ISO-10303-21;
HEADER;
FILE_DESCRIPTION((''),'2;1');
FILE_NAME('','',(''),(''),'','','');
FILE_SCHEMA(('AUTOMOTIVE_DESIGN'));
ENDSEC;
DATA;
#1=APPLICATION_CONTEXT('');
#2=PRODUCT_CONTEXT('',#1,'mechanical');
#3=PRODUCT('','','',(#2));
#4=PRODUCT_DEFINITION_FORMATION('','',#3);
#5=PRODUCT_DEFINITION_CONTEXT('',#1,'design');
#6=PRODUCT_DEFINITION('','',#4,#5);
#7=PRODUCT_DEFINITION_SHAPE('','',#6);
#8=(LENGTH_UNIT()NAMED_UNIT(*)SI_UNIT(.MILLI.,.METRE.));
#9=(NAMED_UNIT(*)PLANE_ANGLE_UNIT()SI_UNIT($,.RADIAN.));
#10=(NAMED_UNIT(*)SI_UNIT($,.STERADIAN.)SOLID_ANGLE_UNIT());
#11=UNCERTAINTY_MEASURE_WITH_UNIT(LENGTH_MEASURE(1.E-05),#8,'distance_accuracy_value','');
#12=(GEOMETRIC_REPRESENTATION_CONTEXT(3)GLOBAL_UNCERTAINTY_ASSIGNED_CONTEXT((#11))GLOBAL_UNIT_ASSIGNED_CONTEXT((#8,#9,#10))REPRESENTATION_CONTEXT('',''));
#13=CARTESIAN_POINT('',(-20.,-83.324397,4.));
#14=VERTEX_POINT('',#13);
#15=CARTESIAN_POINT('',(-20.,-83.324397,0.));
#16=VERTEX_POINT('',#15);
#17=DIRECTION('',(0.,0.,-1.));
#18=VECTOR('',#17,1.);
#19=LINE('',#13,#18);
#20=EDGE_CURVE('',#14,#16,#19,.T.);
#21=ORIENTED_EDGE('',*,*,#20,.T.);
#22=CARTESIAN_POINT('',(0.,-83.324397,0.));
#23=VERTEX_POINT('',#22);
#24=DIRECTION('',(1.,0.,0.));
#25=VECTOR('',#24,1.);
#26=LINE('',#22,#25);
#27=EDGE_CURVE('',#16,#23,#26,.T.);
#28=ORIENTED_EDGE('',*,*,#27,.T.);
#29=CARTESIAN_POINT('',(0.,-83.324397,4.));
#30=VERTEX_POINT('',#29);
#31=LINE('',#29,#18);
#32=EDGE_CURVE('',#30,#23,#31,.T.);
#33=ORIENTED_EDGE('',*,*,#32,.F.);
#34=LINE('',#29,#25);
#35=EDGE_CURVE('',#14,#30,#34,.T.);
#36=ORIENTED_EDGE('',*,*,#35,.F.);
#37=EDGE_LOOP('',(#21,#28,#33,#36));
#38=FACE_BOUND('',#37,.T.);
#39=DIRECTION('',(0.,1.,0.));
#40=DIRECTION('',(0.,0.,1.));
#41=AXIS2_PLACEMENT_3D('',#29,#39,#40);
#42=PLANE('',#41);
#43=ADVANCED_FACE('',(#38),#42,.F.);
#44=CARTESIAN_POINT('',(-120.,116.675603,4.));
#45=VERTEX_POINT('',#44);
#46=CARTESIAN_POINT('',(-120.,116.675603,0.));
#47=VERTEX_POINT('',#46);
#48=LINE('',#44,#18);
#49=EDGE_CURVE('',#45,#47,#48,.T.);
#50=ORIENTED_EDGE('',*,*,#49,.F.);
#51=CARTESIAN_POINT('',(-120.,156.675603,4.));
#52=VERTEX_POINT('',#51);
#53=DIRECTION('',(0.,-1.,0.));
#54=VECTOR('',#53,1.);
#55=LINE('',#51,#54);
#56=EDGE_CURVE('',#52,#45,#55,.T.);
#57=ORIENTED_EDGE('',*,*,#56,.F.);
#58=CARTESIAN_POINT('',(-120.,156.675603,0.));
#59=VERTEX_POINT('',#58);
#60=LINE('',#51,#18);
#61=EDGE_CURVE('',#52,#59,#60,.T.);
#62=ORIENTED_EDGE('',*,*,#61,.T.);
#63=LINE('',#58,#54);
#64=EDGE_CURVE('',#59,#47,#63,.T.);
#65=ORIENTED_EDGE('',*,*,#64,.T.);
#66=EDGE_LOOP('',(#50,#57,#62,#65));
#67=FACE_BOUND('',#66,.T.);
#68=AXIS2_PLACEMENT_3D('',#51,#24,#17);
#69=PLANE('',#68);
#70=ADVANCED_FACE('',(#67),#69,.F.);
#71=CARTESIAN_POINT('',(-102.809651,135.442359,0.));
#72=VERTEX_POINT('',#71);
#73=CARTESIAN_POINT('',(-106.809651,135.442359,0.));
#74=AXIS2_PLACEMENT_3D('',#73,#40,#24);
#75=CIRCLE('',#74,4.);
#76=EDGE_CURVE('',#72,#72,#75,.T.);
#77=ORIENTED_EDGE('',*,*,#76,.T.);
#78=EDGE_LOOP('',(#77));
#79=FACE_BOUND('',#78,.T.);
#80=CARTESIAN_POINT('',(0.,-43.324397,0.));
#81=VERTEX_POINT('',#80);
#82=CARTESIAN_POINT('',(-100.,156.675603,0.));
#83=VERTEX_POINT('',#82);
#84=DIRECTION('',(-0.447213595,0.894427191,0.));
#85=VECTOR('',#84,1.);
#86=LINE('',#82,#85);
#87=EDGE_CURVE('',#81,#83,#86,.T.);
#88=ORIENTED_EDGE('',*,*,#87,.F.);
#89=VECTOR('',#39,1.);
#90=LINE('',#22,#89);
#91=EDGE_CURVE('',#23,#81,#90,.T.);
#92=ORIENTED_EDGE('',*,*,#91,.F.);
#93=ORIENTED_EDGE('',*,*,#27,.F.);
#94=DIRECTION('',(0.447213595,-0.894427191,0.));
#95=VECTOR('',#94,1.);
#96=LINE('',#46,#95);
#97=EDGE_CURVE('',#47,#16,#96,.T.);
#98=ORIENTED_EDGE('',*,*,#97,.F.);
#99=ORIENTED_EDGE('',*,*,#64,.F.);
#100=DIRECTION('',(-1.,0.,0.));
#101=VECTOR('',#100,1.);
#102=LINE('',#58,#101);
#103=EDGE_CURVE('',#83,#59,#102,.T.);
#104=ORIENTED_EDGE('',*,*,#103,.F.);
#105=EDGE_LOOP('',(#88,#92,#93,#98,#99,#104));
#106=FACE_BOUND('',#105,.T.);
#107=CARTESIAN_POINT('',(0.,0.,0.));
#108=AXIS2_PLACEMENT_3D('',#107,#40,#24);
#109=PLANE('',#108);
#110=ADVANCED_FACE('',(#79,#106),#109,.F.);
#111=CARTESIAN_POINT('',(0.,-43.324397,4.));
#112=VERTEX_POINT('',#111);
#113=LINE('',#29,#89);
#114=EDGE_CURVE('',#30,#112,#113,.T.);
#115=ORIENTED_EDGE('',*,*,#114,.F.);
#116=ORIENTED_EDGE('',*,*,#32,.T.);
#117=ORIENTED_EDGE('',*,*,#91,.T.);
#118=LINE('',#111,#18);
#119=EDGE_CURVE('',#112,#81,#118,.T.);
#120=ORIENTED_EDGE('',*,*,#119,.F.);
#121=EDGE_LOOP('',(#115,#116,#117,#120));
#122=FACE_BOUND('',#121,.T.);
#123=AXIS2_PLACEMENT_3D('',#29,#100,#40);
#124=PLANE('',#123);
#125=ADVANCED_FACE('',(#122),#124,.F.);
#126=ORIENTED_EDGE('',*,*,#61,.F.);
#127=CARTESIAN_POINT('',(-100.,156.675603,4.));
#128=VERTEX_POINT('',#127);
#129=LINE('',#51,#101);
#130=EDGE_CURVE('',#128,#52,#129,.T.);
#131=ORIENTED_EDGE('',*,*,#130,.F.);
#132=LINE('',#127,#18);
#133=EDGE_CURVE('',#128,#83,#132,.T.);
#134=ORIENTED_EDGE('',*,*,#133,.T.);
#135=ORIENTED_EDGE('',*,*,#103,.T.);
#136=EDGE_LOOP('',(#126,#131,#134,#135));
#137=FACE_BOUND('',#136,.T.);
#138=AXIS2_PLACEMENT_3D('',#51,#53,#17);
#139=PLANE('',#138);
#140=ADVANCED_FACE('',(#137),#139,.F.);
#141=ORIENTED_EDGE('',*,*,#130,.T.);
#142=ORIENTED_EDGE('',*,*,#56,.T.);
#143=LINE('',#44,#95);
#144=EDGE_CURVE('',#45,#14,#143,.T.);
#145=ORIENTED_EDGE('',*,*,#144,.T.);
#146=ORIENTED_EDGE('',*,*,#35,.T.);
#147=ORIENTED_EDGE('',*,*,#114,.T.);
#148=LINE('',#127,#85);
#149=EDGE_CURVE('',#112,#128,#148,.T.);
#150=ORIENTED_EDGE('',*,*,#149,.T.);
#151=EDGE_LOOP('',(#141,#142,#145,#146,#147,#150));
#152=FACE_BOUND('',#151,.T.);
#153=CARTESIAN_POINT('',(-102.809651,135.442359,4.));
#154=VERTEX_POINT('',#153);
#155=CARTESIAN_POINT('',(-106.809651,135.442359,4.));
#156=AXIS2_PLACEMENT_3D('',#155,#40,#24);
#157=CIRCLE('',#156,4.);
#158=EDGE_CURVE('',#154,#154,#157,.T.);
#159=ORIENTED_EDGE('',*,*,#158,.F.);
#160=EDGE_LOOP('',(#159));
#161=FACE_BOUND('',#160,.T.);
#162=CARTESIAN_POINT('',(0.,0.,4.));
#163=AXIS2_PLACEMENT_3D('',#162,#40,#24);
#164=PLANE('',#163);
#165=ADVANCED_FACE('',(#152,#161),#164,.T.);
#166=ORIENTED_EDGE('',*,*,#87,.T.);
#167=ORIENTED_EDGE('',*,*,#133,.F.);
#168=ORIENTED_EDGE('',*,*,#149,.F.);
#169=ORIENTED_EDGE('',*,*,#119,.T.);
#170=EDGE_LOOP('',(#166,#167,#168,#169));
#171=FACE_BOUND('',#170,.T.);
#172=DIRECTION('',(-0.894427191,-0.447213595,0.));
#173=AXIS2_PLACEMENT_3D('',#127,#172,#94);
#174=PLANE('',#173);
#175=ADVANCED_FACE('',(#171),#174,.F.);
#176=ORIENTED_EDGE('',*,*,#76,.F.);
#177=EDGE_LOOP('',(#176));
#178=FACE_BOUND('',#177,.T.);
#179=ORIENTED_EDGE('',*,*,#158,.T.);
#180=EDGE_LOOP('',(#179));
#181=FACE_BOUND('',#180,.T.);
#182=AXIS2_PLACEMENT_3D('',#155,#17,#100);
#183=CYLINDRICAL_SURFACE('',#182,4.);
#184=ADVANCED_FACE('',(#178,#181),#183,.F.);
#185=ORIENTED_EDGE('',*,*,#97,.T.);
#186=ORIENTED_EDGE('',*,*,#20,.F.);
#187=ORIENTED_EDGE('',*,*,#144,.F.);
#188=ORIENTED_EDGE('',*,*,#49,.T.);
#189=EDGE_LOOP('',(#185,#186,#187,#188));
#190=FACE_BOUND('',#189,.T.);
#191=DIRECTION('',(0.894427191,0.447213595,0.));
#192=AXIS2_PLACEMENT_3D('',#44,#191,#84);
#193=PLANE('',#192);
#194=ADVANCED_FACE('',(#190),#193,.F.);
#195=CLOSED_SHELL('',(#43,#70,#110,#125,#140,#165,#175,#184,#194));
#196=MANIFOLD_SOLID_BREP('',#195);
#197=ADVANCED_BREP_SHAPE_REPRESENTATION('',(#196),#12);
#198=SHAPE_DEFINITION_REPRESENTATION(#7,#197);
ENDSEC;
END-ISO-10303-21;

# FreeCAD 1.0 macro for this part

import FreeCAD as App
import Part
import Sketcher

V = App.Vector
Q = App.Units.Quantity

doc = App.newDocument("Part")
params = doc.addObject("Spreadsheet::Sheet", "Params")
for row, (alias, value) in enumerate([
    ("sketch1_diameter", "8 mm"),
    ("sketch1_width", "20 mm"),
    ("sketch1_height", "40 mm"),
    ("pad1_length", "4 mm"),
], start=1):
    params.set(f"A{row}", alias)
    params.set(f"B{row}", "=" + value)
    params.setAlias(f"B{row}", alias)

body = doc.addObject("PartDesign::Body", "Body")

sketch1 = doc.addObject("Sketcher::SketchObject", "Sketch")
body.addObject(sketch1)
sketch1.AttachmentSupport = (doc.XY_Plane, [""])
sketch1.MapMode = "FlatFace"
sketch1.addGeometry([
    Part.LineSegment(V(0, -83.3, 0), V(0, -43.3, 0)),
    Part.LineSegment(V(0, -43.3, 0), V(-100, 156.7, 0)),
    Part.LineSegment(V(-100, 156.7, 0), V(-120, 156.7, 0)),
    Part.LineSegment(V(-120, 156.7, 0), V(-120, 116.7, 0)),
    Part.LineSegment(V(-120, 116.7, 0), V(-20, -83.3, 0)),
    Part.LineSegment(V(-20, -83.3, 0), V(0, -83.3, 0)),
    Part.Circle(V(-106.8, 135.4, 0), V(0, 0, 1), 4),
], False)
sketch1.addConstraint([
    Sketcher.Constraint("Coincident", 0, 2, 1, 1),
    Sketcher.Constraint("Coincident", 1, 2, 2, 1),
    Sketcher.Constraint("Coincident", 2, 2, 3, 1),
    Sketcher.Constraint("Coincident", 3, 2, 4, 1),
    Sketcher.Constraint("Coincident", 4, 2, 5, 1),
    Sketcher.Constraint("Coincident", 5, 2, 0, 1),
    Sketcher.Constraint("Vertical", 0),
    Sketcher.Constraint("Horizontal", 2),
    Sketcher.Constraint("Vertical", 3),
    Sketcher.Constraint("Horizontal", 5),
    Sketcher.Constraint("PointOnObject", 0, 2, -2),
    Sketcher.Constraint("Parallel", 1, 4),
    Sketcher.Constraint("Equal", 2, 5),
    Sketcher.Constraint("Diameter", 6, Q("8 mm")),
    Sketcher.Constraint("DistanceX", 2, 2, 2, 1, Q("20 mm")),
    Sketcher.Constraint("DistanceY", 0, 1, 0, 2, Q("40 mm")),
    Sketcher.Constraint("DistanceX", 1, 2, -1, 1, Q("100 mm")),
    Sketcher.Constraint("DistanceY", 0, 2, 1, 2, Q("200 mm")),
    Sketcher.Constraint("DistanceX", 6, 3, -1, 1, Q("106.809651 mm")),
    Sketcher.Constraint("DistanceY", -1, 1, 6, 3, Q("135.442359 mm")),
    Sketcher.Constraint("DistanceY", 0, 2, -1, 1, Q("43.324397 mm")),
])
sketch1.setExpression("Constraints[13]", "Params.sketch1_diameter")
sketch1.setExpression("Constraints[14]", "Params.sketch1_width")
sketch1.setExpression("Constraints[15]", "Params.sketch1_height")
pad1 = doc.addObject("PartDesign::Pad", "Pad")
body.addObject(pad1)
pad1.Profile = sketch1
pad1.setExpression("Length", "Params.pad1_length")

doc.recompute()
